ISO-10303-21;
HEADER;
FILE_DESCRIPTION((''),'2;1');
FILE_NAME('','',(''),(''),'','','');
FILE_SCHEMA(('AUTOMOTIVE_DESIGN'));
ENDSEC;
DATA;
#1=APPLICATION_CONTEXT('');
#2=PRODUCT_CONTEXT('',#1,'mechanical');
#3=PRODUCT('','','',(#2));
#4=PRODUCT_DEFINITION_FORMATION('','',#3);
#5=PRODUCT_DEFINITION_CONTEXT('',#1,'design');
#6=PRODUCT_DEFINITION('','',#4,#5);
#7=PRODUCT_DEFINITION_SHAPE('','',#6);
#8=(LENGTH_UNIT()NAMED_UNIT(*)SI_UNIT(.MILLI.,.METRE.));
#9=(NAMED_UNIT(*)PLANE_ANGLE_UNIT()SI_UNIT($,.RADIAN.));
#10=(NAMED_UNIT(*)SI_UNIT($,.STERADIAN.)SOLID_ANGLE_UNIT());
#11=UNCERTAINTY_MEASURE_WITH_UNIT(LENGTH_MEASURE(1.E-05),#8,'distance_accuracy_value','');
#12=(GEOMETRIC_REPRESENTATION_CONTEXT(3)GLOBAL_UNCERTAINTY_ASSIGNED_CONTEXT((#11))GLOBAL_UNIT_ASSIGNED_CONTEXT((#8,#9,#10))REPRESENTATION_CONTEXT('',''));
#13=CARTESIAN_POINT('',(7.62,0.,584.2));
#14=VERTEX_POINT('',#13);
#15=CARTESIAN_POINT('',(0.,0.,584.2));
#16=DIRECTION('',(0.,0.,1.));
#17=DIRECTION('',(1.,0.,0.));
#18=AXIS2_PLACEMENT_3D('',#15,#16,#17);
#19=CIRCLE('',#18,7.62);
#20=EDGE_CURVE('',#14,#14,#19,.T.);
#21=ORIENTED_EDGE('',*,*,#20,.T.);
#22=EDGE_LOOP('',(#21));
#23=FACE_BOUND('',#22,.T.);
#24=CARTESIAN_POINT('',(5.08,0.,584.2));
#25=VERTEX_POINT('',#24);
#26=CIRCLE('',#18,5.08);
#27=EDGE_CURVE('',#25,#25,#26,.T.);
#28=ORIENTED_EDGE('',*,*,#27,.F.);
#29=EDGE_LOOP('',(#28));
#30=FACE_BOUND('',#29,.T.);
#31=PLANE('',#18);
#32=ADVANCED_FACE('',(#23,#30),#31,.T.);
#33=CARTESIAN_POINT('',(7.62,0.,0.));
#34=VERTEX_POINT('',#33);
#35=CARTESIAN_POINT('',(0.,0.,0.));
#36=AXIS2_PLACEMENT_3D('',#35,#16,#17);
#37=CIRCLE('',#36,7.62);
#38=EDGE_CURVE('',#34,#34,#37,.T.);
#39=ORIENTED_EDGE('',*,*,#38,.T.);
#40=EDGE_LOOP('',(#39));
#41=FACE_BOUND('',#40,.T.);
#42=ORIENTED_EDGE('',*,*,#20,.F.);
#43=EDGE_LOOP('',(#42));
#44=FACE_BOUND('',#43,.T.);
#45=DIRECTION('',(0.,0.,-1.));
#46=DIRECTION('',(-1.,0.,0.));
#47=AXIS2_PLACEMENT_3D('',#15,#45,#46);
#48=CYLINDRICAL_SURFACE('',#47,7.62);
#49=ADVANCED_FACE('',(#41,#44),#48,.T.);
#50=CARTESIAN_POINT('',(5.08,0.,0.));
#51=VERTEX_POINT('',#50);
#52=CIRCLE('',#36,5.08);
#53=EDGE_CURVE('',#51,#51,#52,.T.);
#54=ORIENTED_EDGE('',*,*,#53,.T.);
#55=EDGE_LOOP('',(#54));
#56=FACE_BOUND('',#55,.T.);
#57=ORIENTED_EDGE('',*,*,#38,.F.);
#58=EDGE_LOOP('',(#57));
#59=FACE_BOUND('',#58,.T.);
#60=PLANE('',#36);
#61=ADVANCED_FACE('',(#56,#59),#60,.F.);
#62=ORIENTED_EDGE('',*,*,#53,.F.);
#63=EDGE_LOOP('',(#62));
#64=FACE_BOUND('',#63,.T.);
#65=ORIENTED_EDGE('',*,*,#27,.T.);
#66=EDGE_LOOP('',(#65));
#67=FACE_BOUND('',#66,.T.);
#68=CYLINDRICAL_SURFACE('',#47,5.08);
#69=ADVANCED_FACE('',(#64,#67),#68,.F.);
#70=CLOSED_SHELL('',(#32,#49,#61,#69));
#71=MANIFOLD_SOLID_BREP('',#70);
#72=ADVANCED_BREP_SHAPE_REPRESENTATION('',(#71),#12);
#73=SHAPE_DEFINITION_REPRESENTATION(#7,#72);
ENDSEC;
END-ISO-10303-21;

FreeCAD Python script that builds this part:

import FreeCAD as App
import Part
import Sketcher

V = App.Vector
Q = App.Units.Quantity

doc = App.newDocument("Part")
params = doc.addObject("Spreadsheet::Sheet", "Params")
for row, (alias, value) in enumerate([
    ("sketch1_diameter", "0.6 in"),
    ("sketch1_diameter2", "0.4 in"),
    ("pad1_length", "23 in"),
], start=1):
    params.set(f"A{row}", alias)
    params.set(f"B{row}", "=" + value)
    params.setAlias(f"B{row}", alias)

body = doc.addObject("PartDesign::Body", "Body")

# Sketch on XY plane
sketch1 = body.newObject("Sketcher::SketchObject", "Sketch")
sketch1.AttachmentSupport = (doc.getObject("XY_Plane"), [""])
sketch1.MapMode = "FlatFace"
sketch1.addGeometry([
    Part.Circle(V(0, 0, 0), V(0, 0, 1), 7.62),
    Part.Circle(V(0, 0, 0), V(0, 0, 1), 5.08),
], False)
sketch1.addConstraint([
    Sketcher.Constraint("Coincident", 0, 3, -1, 1),
    Sketcher.Constraint("Coincident", 1, 3, -1, 1),
    Sketcher.Constraint("Diameter", 0, Q("0.6 in")),
    Sketcher.Constraint("Diameter", 1, Q("0.4 in")),
])
sketch1.setExpression("Constraints[2]", "Params.sketch1_diameter")
sketch1.setExpression("Constraints[3]", "Params.sketch1_diameter2")
pad1 = body.newObject("PartDesign::Pad", "Pad")
pad1.Profile = sketch1
pad1.setExpression("Length", "Params.pad1_length")

doc.recompute()
